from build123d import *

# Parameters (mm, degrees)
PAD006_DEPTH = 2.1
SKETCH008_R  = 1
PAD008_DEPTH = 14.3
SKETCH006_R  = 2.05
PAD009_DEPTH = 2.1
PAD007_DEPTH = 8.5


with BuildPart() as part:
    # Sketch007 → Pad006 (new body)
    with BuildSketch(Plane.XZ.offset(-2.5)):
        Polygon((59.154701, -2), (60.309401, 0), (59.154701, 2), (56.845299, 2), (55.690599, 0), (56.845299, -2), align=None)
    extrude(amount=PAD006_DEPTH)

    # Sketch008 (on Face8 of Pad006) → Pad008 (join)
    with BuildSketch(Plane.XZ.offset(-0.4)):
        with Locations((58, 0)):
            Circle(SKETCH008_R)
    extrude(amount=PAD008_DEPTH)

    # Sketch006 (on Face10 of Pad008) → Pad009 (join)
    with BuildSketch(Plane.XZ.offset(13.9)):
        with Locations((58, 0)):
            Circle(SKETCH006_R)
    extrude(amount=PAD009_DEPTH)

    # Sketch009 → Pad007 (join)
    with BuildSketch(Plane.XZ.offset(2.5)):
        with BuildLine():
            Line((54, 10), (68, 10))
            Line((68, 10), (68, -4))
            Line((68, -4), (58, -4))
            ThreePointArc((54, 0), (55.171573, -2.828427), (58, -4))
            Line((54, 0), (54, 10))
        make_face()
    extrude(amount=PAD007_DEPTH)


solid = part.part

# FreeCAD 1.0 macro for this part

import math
import FreeCAD as App
import Part
import Sketcher
Q = App.Units.Quantity


def add_polygon(sketch, points):
    """Adds a closed chain of lines whose ends are joined by coincident constraints."""
    first, n = sketch.GeometryCount, len(points)
    for a, b in zip(points, points[1:] + points[:1]):
        sketch.addGeometry(Part.LineSegment(App.Vector(*a, 0), App.Vector(*b, 0)), False)
    for i in range(n):
        sketch.addConstraint(Sketcher.Constraint("Coincident", first + i, 2, first + (i + 1) % n, 1))

doc = App.newDocument("Part")
body = doc.addObject("PartDesign::Body", "Body")

# Sketch on XZ plane
sketch1 = body.newObject("Sketcher::SketchObject", "Sketch")
sketch1.AttachmentSupport = (doc.getObject("XZ_Plane"), [""])
sketch1.MapMode = "FlatFace"
sketch1.AttachmentOffset = App.Placement(App.Vector(0, 0, -2.5), App.Rotation())
add_polygon(sketch1, [(59.2, -2), (60.3, 0), (59.2, 2), (56.8, 2), (55.7, 0), (56.8, -2)])  # lines 0-5
sketch1.addConstraint([
    Sketcher.Constraint("Horizontal", 2),
    Sketcher.Constraint("Horizontal", 5),
    Sketcher.Constraint("Symmetric", 2, 2, 4, 2, -1),
    Sketcher.Constraint("PointOnObject", 0, 2, -1),
    Sketcher.Constraint("PointOnObject", 3, 2, -1),
    Sketcher.Constraint("Parallel", 0, 3),
    Sketcher.Constraint("Parallel", 1, 4),
    Sketcher.Constraint("Angle", 0, Q("60.000012 deg")),
    Sketcher.Constraint("DistanceY", -1, 1, 1, 2, Q("2 mm")),
    Sketcher.Constraint("DistanceX", -1, 1, 0, 2, Q("60.309401 mm")),
    Sketcher.Constraint("DistanceX", -1, 1, 2, 2, Q("56.845299 mm")),
])
pad1 = body.newObject("PartDesign::Pad", "Pad")
pad1.Profile = sketch1
pad1.Length = 2.1

# Sketch on XZ plane
sketch2 = body.newObject("Sketcher::SketchObject", "Sketch001")
sketch2.AttachmentSupport = (doc.getObject("XZ_Plane"), [""])
sketch2.MapMode = "FlatFace"
sketch2.AttachmentOffset = App.Placement(App.Vector(0, 0, -0.4), App.Rotation())
sketch2.addGeometry(Part.Circle(App.Vector(58, 0, 0), App.Vector(0, 0, 1), 1), False)
sketch2.addConstraint([
    Sketcher.Constraint("PointOnObject", 0, 3, -1),
    Sketcher.Constraint("Diameter", 0, Q("2 mm")),
    Sketcher.Constraint("DistanceX", -1, 1, 0, 3, Q("58 mm")),
])
pad2 = body.newObject("PartDesign::Pad", "Pad001")
pad2.Profile = sketch2
pad2.Length = 14.3

# Sketch on XZ plane
sketch3 = body.newObject("Sketcher::SketchObject", "Sketch002")
sketch3.AttachmentSupport = (doc.getObject("XZ_Plane"), [""])
sketch3.MapMode = "FlatFace"
sketch3.AttachmentOffset = App.Placement(App.Vector(0, 0, 13.9), App.Rotation())
sketch3.addGeometry(Part.Circle(App.Vector(58, 0, 0), App.Vector(0, 0, 1), 2), False)
sketch3.addConstraint([
    Sketcher.Constraint("PointOnObject", 0, 3, -1),
    Sketcher.Constraint("Diameter", 0, Q("4.1 mm")),
    Sketcher.Constraint("DistanceX", -1, 1, 0, 3, Q("58 mm")),
])
pad3 = body.newObject("PartDesign::Pad", "Pad002")
pad3.Profile = sketch3
pad3.Length = 2.1

# Sketch on XZ plane
sketch4 = body.newObject("Sketcher::SketchObject", "Sketch003")
sketch4.AttachmentSupport = (doc.getObject("XZ_Plane"), [""])
sketch4.MapMode = "FlatFace"
sketch4.AttachmentOffset = App.Placement(App.Vector(0, 0, 2.5), App.Rotation())
sketch4.addGeometry([
    Part.LineSegment(App.Vector(68, 10, 0), App.Vector(54, 10, 0)),  # 0
    Part.LineSegment(App.Vector(54, 10, 0), App.Vector(54, 0, 0)),  # 1
    Part.ArcOfCircle(Part.Circle(App.Vector(58, 0, 0), App.Vector(0, 0, 1), 4), math.radians(-180), math.radians(-90)),  # 2
    Part.LineSegment(App.Vector(58, -4, 0), App.Vector(68, -4, 0)),  # 3
    Part.LineSegment(App.Vector(68, -4, 0), App.Vector(68, 10, 0)),  # 4
], False)
sketch4.addConstraint([
    Sketcher.Constraint("Coincident", 0, 2, 1, 1),
    Sketcher.Constraint("Tangent", 1, 2, 2, 1),
    Sketcher.Constraint("Tangent", 2, 2, 3, 1),
    Sketcher.Constraint("Coincident", 3, 2, 4, 1),
    Sketcher.Constraint("Coincident", 4, 2, 0, 1),
    Sketcher.Constraint("Horizontal", 0),
    Sketcher.Constraint("Vertical", 1),
    Sketcher.Constraint("Horizontal", 3),
    Sketcher.Constraint("Vertical", 4),
    Sketcher.Constraint("PointOnObject", 2, 3, -1),
    Sketcher.Constraint("Equal", 3, 1),
    Sketcher.Constraint("Radius", 2, Q("4 mm")),
    Sketcher.Constraint("DistanceX", 0, 2, 0, 1, Q("14 mm")),
    Sketcher.Constraint("DistanceX", -1, 1, 2, 3, Q("58 mm")),
])
pad4 = body.newObject("PartDesign::Pad", "Pad003")
pad4.Profile = sketch4
pad4.Length = 8.5

doc.recompute()
